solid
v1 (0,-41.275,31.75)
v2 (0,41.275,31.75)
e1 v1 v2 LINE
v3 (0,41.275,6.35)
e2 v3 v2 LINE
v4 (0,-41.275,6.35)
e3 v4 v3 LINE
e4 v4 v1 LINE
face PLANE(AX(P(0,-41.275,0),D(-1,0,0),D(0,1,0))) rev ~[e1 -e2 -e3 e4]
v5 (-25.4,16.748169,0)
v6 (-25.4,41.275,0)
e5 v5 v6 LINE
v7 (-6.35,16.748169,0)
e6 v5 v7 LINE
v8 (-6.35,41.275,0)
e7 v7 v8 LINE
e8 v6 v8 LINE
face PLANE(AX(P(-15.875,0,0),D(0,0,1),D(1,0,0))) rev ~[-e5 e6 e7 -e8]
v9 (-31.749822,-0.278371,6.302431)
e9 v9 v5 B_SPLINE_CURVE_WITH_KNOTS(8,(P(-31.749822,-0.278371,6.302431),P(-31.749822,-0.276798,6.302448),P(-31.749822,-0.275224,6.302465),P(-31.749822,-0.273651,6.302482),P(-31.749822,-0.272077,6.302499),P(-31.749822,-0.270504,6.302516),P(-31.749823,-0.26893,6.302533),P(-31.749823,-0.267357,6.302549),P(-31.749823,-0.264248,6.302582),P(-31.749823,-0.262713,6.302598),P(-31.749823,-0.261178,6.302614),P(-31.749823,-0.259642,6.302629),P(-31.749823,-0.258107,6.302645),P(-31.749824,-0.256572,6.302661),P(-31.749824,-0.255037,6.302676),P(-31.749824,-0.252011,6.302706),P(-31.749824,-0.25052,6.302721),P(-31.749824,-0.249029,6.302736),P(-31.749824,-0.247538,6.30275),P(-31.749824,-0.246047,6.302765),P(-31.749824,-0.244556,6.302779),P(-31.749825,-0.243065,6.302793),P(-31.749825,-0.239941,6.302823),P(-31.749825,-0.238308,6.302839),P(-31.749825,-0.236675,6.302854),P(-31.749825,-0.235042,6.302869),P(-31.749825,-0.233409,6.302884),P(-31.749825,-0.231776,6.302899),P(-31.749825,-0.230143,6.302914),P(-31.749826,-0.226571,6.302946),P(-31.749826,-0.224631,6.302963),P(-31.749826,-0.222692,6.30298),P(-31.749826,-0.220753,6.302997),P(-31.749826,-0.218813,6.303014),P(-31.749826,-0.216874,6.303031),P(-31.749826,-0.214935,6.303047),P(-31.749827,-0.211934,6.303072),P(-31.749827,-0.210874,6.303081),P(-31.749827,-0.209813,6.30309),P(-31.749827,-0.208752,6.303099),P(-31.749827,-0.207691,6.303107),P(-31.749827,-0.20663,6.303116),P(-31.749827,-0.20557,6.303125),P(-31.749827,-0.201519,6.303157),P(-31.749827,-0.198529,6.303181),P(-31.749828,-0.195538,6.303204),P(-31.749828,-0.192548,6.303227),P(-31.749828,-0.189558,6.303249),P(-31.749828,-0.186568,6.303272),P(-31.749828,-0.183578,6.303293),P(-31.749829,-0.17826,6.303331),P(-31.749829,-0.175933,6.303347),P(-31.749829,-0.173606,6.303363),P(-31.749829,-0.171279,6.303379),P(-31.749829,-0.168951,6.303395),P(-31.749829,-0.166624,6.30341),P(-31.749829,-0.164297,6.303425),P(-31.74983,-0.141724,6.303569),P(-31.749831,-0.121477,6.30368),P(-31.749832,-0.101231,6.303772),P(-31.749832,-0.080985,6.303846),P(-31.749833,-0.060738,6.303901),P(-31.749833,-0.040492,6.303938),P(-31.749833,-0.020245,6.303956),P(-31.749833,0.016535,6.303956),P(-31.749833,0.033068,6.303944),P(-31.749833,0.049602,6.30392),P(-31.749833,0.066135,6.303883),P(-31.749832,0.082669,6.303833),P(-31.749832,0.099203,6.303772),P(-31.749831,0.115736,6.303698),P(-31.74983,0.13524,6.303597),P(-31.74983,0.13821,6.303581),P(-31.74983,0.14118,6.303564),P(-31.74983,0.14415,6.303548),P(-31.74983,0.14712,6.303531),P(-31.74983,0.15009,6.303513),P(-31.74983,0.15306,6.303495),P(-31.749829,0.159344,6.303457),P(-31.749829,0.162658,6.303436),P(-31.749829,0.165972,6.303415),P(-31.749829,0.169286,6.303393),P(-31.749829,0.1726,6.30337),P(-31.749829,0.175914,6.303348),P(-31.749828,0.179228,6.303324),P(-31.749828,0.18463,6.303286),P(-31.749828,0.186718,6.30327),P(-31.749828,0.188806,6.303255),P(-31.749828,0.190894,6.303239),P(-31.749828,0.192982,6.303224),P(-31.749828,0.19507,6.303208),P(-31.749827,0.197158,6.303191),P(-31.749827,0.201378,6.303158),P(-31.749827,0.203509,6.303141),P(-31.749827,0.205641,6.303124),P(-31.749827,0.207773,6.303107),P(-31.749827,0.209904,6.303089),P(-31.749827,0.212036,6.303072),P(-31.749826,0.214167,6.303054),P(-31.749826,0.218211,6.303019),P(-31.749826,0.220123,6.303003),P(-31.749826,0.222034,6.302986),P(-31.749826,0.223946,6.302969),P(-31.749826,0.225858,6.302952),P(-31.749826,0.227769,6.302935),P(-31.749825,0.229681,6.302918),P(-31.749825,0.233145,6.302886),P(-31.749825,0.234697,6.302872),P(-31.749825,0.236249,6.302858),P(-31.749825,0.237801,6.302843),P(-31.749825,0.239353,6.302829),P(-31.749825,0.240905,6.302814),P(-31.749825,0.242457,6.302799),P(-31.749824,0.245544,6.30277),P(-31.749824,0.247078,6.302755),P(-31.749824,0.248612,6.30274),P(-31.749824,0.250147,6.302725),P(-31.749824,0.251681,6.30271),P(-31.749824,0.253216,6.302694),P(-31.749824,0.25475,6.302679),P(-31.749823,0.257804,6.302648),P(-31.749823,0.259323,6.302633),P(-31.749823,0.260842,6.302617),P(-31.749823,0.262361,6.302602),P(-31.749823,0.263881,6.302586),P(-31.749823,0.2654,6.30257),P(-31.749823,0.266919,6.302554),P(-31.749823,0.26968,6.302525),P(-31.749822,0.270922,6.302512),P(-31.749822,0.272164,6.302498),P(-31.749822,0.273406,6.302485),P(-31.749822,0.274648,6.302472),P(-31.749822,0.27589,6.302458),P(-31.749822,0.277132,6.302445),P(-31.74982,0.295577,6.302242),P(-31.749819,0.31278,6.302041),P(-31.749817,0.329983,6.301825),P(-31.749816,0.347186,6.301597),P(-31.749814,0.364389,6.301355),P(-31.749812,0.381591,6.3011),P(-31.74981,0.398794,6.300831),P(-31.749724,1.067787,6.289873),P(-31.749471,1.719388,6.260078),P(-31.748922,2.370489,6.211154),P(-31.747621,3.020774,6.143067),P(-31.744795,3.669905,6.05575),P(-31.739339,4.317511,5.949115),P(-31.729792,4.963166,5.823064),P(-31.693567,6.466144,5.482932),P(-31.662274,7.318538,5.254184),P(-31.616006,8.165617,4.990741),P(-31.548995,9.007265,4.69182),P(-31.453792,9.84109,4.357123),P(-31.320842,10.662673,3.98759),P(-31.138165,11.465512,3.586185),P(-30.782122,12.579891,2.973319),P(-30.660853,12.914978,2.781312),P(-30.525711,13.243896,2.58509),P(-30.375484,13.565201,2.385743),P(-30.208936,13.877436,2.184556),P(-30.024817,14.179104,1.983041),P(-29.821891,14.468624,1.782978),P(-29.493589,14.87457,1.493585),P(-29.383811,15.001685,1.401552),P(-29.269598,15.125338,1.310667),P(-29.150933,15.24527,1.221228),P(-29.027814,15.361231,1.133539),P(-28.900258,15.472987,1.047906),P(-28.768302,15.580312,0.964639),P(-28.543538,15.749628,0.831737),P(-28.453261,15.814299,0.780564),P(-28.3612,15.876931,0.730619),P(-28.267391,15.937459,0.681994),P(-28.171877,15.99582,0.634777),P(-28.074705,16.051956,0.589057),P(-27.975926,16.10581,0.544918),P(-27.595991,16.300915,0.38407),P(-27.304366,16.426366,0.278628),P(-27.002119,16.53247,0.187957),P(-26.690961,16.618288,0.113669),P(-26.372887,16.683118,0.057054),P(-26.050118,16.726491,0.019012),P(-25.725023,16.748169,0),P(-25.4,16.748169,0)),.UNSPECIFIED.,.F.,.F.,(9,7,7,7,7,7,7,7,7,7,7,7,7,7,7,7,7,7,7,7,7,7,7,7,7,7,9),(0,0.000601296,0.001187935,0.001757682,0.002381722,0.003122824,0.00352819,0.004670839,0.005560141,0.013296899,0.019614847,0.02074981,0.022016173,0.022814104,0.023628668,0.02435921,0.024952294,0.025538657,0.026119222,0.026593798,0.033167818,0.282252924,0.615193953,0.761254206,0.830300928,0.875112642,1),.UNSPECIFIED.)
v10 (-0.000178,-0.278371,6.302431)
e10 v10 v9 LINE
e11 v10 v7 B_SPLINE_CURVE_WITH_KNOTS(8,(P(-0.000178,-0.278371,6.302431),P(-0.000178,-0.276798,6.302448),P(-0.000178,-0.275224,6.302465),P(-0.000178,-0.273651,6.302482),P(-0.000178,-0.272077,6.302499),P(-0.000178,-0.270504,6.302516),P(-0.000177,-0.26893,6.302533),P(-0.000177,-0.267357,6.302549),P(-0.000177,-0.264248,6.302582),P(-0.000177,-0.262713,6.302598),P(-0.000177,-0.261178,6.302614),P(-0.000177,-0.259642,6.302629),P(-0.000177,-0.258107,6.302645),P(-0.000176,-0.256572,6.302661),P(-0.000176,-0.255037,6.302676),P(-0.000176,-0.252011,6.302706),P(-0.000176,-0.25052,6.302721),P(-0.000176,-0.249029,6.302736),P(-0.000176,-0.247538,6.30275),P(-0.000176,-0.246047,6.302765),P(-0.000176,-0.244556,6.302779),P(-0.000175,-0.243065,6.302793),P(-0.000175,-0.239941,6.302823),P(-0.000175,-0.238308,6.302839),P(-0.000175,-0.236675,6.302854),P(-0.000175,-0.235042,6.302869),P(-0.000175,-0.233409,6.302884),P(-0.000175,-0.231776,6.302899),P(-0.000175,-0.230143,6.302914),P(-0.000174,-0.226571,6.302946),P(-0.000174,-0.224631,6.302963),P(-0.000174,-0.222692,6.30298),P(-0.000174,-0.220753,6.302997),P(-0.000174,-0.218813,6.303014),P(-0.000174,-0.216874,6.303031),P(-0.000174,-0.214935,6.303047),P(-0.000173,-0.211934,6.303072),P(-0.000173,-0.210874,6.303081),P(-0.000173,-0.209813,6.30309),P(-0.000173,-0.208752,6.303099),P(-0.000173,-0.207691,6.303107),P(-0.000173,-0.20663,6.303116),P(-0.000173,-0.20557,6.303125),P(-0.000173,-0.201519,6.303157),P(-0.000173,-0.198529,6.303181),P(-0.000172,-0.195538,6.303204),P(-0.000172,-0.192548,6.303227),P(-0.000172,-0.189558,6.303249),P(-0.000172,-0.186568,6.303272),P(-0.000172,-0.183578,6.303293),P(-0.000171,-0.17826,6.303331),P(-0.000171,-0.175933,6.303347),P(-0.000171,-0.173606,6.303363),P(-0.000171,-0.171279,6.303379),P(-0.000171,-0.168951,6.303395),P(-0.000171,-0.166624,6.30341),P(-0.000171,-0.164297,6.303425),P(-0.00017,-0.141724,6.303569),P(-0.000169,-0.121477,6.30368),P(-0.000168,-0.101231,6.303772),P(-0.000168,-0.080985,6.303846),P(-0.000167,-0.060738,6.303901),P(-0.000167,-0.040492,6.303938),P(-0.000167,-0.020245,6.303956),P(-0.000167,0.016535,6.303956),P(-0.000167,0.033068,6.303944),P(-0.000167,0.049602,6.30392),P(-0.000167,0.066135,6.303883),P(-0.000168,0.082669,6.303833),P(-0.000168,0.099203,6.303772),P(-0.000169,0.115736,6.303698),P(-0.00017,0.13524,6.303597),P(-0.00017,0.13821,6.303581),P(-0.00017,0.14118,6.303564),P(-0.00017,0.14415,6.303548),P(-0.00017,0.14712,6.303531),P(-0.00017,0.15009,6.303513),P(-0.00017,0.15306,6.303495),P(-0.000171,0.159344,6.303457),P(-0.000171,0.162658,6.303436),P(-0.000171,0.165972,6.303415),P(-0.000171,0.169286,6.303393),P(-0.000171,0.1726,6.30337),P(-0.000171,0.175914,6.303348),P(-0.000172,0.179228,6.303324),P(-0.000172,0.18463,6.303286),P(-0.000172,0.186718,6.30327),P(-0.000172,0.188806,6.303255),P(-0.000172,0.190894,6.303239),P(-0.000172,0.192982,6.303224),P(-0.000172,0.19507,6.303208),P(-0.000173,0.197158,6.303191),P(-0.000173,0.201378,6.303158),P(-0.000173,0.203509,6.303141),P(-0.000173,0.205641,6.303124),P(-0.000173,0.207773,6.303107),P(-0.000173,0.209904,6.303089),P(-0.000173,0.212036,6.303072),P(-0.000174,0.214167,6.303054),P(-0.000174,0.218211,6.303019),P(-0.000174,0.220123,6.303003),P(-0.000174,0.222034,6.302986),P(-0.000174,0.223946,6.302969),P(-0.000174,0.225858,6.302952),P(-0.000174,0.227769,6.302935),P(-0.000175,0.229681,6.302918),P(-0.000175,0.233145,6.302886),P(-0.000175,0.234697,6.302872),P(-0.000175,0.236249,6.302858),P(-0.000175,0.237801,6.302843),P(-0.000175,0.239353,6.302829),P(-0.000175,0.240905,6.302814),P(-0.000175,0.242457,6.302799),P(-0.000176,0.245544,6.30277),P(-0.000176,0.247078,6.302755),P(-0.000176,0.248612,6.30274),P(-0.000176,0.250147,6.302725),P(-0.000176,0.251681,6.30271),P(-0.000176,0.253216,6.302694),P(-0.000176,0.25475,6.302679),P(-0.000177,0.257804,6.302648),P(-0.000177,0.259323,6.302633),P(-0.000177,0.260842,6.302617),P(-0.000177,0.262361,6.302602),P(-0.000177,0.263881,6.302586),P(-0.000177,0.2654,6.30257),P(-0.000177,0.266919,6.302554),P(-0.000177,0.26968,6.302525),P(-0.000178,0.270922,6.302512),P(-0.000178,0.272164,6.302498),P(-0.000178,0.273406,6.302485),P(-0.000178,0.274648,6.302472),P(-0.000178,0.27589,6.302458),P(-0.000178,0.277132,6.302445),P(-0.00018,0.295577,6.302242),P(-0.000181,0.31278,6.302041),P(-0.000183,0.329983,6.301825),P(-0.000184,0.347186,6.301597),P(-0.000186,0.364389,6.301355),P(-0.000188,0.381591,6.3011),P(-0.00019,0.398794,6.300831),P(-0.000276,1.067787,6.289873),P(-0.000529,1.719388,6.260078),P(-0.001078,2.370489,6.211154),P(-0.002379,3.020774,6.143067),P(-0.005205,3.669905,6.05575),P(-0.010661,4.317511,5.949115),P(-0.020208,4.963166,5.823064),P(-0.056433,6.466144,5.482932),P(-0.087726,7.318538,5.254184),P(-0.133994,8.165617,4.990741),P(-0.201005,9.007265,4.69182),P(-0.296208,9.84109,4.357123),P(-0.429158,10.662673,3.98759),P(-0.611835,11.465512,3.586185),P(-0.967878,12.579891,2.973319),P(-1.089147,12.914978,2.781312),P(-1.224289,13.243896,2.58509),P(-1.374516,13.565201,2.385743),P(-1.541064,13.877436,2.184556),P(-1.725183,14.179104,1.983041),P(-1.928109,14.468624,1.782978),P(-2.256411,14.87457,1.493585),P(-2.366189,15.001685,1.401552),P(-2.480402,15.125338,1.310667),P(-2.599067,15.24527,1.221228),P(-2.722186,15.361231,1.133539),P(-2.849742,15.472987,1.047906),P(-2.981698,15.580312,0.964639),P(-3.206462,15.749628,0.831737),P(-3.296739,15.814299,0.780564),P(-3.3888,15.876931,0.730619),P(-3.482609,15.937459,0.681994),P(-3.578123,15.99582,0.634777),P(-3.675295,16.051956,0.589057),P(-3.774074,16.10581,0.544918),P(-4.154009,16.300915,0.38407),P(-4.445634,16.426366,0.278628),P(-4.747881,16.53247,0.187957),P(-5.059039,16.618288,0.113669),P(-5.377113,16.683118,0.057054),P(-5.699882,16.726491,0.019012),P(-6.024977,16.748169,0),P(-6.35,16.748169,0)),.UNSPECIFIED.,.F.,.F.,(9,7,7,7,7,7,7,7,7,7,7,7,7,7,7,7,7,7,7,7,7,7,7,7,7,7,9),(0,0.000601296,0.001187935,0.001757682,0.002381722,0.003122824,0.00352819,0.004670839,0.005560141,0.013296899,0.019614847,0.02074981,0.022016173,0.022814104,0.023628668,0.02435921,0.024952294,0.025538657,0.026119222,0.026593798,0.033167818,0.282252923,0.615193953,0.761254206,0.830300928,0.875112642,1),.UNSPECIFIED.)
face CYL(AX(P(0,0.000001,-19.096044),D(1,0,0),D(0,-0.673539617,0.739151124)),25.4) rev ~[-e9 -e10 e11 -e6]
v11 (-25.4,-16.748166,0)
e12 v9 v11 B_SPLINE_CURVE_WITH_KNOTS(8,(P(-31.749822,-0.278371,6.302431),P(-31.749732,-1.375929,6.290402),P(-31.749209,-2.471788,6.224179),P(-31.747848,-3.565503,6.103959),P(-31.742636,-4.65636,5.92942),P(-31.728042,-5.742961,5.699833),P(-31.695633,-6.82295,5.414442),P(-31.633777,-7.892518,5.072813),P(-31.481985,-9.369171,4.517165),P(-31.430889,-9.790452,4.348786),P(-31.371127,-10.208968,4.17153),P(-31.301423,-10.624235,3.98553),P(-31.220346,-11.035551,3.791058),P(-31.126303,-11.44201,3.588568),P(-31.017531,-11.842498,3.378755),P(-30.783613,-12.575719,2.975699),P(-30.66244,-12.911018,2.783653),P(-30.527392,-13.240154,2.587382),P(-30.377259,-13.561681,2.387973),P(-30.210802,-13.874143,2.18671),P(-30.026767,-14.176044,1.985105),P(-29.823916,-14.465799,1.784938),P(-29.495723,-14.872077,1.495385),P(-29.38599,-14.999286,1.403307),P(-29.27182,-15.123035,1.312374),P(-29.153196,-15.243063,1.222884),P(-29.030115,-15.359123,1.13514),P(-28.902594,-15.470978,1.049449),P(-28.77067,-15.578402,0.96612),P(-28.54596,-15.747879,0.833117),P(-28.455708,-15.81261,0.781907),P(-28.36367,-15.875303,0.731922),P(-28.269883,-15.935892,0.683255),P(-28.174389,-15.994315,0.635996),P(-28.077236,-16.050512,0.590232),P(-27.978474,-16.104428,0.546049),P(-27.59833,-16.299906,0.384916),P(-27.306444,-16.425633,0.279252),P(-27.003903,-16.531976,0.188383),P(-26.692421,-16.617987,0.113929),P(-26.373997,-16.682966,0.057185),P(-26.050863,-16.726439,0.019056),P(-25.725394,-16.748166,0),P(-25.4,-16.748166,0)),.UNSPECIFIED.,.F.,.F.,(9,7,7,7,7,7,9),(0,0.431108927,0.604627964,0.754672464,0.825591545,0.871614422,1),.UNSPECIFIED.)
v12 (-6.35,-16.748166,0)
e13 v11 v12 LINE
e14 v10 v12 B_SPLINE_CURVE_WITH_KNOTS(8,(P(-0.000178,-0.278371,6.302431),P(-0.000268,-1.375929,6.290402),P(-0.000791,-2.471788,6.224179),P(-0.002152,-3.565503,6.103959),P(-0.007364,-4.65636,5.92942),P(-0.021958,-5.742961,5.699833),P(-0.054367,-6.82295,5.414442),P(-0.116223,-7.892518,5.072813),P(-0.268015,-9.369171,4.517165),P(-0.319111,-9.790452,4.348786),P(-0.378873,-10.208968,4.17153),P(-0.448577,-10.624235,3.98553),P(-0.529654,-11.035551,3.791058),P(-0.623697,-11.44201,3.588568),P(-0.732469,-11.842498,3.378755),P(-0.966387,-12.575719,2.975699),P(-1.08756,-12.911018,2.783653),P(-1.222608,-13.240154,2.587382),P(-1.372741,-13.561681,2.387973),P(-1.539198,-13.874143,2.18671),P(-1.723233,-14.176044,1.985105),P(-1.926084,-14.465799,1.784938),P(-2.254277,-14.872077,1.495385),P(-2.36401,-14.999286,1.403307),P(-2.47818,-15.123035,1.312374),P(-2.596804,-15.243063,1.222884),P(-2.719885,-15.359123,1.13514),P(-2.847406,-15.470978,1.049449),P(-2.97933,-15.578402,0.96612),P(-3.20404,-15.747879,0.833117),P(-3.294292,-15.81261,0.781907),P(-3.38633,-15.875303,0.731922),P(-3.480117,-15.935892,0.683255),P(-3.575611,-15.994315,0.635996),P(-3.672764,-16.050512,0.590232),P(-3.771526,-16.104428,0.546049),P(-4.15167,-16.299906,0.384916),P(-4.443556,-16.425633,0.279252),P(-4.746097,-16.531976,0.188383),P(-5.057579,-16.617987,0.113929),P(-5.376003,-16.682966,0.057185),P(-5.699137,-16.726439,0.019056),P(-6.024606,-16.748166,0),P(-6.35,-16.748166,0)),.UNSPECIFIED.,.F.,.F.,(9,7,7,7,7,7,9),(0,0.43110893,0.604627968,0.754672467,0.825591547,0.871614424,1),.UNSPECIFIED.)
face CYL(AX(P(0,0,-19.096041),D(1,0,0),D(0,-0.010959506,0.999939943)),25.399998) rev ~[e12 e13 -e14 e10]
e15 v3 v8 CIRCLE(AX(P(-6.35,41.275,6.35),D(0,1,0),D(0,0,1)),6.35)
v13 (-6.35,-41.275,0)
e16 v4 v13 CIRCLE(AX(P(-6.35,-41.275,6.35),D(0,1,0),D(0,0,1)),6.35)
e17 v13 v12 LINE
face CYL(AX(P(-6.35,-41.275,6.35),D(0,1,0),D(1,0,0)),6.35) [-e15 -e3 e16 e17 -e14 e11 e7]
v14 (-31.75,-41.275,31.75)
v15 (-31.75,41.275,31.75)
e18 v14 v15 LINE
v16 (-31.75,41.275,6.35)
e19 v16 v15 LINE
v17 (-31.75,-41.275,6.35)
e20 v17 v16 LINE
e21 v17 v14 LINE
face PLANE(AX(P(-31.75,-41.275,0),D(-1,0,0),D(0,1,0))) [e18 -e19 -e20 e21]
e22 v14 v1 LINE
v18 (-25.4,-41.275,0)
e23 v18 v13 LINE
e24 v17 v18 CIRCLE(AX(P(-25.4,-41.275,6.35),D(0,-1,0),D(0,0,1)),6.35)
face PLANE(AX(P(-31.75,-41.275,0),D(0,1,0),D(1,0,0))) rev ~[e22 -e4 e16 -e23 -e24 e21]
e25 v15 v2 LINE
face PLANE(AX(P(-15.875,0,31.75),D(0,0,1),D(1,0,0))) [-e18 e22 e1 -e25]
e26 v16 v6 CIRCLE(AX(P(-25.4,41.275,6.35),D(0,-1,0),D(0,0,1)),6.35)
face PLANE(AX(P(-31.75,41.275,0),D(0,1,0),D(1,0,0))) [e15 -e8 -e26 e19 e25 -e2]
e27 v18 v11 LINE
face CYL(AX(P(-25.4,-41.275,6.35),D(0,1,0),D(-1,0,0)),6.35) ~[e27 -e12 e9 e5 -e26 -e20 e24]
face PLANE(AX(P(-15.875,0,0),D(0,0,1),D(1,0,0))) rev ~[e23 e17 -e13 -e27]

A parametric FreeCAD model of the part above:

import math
import FreeCAD as App
import Part
import Sketcher

V = App.Vector
Q = App.Units.Quantity


def edges_at(feature, points):
    """Names of the edges that pass closest to the given points."""
    edges = feature.Shape.Edges
    near = lambda p: min(range(len(edges)), key=lambda i: edges[i].distToShape(Part.Vertex(*p))[0])
    return sorted({f"Edge{near(p) + 1}" for p in points})

doc = App.newDocument("Part")
body = doc.addObject("PartDesign::Body", "Body")

sketch1 = doc.addObject("Sketcher::SketchObject", "Sketch")
body.addObject(sketch1)
sketch1.AttachmentSupport = (doc.XY_Plane, [""])
sketch1.MapMode = "FlatFace"
sketch1.addGeometry([
    Part.LineSegment(V(-31.75, 41.275, 0), V(-31.75, -41.275, 0)),
    Part.LineSegment(V(-31.75, -41.275, 0), V(0, -41.275, 0)),
    Part.LineSegment(V(0, -41.275, 0), V(0, 41.275, 0)),
    Part.LineSegment(V(0, 41.275, 0), V(-31.75, 41.275, 0)),
], False)
sketch1.addConstraint([
    Sketcher.Constraint("Coincident", 0, 2, 1, 1),
    Sketcher.Constraint("Coincident", 1, 2, 2, 1),
    Sketcher.Constraint("Coincident", 2, 2, 3, 1),
    Sketcher.Constraint("Coincident", 3, 2, 0, 1),
    Sketcher.Constraint("Vertical", 0),
    Sketcher.Constraint("Horizontal", 1),
    Sketcher.Constraint("Vertical", 2),
    Sketcher.Constraint("Horizontal", 3),
    Sketcher.Constraint("Symmetric", 1, 2, 2, 2, -1, 1),
    Sketcher.Constraint("DistanceX", 1, 1, 1, 2, Q("1.25 in")),
    Sketcher.Constraint("DistanceY", 0, 2, 0, 1, Q("3.25 in")),
])
pad1 = doc.addObject("PartDesign::Pad", "Pad")
body.addObject(pad1)
pad1.Profile = sketch1
pad1.Length = Q("1.25 in")
doc.recompute()

fillet = doc.addObject("PartDesign::Fillet", "Fillet")
body.addObject(fillet)
fillet.Base = (pad1, edges_at(pad1, [(0, 0, 0), (-31.75, 0, 0)]))
fillet.Radius = Q("0.25 in")

sketch2 = doc.addObject("Sketcher::SketchObject", "Sketch001")
body.addObject(sketch2)
sketch2.AttachmentSupport = (doc.YZ_Plane, [""])
sketch2.MapMode = "FlatFace"
sketch2.addGeometry([
    Part.ArcOfCircle(Part.Circle(V(0.000001, -19.096044, 0), V(0, 0, 1), 25.4), math.radians(132.340846), math.radians(450.627948)),
    Part.ArcOfCircle(Part.Circle(V(0, -19.096041, 0), V(0, 0, 1), 25.399998), math.radians(90.627946), math.radians(132.340847)),
], False)
sketch2.addConstraint([
    Sketcher.Constraint("Tangent", 0, 1, 1, 2),
    Sketcher.Constraint("Coincident", 1, 1, 0, 2),
    Sketcher.Constraint("PointOnObject", 0, 3, -2),
    Sketcher.Constraint("Radius", 0, Q("1 in")),
    Sketcher.Constraint("DistanceY", 1, 3, -1, 1, Q("19.096041 mm")),
    Sketcher.Constraint("DistanceX", 1, 1, -1, 1, Q("0.278371 mm")),
    Sketcher.Constraint("DistanceY", 0, 3, 0, 1, Q("18.774439 mm")),
])
pocket1 = doc.addObject("PartDesign::Pocket", "Pocket")
body.addObject(pocket1)
pocket1.Profile = sketch2
pocket1.Length = Q("1.25 in")

doc.recompute()
